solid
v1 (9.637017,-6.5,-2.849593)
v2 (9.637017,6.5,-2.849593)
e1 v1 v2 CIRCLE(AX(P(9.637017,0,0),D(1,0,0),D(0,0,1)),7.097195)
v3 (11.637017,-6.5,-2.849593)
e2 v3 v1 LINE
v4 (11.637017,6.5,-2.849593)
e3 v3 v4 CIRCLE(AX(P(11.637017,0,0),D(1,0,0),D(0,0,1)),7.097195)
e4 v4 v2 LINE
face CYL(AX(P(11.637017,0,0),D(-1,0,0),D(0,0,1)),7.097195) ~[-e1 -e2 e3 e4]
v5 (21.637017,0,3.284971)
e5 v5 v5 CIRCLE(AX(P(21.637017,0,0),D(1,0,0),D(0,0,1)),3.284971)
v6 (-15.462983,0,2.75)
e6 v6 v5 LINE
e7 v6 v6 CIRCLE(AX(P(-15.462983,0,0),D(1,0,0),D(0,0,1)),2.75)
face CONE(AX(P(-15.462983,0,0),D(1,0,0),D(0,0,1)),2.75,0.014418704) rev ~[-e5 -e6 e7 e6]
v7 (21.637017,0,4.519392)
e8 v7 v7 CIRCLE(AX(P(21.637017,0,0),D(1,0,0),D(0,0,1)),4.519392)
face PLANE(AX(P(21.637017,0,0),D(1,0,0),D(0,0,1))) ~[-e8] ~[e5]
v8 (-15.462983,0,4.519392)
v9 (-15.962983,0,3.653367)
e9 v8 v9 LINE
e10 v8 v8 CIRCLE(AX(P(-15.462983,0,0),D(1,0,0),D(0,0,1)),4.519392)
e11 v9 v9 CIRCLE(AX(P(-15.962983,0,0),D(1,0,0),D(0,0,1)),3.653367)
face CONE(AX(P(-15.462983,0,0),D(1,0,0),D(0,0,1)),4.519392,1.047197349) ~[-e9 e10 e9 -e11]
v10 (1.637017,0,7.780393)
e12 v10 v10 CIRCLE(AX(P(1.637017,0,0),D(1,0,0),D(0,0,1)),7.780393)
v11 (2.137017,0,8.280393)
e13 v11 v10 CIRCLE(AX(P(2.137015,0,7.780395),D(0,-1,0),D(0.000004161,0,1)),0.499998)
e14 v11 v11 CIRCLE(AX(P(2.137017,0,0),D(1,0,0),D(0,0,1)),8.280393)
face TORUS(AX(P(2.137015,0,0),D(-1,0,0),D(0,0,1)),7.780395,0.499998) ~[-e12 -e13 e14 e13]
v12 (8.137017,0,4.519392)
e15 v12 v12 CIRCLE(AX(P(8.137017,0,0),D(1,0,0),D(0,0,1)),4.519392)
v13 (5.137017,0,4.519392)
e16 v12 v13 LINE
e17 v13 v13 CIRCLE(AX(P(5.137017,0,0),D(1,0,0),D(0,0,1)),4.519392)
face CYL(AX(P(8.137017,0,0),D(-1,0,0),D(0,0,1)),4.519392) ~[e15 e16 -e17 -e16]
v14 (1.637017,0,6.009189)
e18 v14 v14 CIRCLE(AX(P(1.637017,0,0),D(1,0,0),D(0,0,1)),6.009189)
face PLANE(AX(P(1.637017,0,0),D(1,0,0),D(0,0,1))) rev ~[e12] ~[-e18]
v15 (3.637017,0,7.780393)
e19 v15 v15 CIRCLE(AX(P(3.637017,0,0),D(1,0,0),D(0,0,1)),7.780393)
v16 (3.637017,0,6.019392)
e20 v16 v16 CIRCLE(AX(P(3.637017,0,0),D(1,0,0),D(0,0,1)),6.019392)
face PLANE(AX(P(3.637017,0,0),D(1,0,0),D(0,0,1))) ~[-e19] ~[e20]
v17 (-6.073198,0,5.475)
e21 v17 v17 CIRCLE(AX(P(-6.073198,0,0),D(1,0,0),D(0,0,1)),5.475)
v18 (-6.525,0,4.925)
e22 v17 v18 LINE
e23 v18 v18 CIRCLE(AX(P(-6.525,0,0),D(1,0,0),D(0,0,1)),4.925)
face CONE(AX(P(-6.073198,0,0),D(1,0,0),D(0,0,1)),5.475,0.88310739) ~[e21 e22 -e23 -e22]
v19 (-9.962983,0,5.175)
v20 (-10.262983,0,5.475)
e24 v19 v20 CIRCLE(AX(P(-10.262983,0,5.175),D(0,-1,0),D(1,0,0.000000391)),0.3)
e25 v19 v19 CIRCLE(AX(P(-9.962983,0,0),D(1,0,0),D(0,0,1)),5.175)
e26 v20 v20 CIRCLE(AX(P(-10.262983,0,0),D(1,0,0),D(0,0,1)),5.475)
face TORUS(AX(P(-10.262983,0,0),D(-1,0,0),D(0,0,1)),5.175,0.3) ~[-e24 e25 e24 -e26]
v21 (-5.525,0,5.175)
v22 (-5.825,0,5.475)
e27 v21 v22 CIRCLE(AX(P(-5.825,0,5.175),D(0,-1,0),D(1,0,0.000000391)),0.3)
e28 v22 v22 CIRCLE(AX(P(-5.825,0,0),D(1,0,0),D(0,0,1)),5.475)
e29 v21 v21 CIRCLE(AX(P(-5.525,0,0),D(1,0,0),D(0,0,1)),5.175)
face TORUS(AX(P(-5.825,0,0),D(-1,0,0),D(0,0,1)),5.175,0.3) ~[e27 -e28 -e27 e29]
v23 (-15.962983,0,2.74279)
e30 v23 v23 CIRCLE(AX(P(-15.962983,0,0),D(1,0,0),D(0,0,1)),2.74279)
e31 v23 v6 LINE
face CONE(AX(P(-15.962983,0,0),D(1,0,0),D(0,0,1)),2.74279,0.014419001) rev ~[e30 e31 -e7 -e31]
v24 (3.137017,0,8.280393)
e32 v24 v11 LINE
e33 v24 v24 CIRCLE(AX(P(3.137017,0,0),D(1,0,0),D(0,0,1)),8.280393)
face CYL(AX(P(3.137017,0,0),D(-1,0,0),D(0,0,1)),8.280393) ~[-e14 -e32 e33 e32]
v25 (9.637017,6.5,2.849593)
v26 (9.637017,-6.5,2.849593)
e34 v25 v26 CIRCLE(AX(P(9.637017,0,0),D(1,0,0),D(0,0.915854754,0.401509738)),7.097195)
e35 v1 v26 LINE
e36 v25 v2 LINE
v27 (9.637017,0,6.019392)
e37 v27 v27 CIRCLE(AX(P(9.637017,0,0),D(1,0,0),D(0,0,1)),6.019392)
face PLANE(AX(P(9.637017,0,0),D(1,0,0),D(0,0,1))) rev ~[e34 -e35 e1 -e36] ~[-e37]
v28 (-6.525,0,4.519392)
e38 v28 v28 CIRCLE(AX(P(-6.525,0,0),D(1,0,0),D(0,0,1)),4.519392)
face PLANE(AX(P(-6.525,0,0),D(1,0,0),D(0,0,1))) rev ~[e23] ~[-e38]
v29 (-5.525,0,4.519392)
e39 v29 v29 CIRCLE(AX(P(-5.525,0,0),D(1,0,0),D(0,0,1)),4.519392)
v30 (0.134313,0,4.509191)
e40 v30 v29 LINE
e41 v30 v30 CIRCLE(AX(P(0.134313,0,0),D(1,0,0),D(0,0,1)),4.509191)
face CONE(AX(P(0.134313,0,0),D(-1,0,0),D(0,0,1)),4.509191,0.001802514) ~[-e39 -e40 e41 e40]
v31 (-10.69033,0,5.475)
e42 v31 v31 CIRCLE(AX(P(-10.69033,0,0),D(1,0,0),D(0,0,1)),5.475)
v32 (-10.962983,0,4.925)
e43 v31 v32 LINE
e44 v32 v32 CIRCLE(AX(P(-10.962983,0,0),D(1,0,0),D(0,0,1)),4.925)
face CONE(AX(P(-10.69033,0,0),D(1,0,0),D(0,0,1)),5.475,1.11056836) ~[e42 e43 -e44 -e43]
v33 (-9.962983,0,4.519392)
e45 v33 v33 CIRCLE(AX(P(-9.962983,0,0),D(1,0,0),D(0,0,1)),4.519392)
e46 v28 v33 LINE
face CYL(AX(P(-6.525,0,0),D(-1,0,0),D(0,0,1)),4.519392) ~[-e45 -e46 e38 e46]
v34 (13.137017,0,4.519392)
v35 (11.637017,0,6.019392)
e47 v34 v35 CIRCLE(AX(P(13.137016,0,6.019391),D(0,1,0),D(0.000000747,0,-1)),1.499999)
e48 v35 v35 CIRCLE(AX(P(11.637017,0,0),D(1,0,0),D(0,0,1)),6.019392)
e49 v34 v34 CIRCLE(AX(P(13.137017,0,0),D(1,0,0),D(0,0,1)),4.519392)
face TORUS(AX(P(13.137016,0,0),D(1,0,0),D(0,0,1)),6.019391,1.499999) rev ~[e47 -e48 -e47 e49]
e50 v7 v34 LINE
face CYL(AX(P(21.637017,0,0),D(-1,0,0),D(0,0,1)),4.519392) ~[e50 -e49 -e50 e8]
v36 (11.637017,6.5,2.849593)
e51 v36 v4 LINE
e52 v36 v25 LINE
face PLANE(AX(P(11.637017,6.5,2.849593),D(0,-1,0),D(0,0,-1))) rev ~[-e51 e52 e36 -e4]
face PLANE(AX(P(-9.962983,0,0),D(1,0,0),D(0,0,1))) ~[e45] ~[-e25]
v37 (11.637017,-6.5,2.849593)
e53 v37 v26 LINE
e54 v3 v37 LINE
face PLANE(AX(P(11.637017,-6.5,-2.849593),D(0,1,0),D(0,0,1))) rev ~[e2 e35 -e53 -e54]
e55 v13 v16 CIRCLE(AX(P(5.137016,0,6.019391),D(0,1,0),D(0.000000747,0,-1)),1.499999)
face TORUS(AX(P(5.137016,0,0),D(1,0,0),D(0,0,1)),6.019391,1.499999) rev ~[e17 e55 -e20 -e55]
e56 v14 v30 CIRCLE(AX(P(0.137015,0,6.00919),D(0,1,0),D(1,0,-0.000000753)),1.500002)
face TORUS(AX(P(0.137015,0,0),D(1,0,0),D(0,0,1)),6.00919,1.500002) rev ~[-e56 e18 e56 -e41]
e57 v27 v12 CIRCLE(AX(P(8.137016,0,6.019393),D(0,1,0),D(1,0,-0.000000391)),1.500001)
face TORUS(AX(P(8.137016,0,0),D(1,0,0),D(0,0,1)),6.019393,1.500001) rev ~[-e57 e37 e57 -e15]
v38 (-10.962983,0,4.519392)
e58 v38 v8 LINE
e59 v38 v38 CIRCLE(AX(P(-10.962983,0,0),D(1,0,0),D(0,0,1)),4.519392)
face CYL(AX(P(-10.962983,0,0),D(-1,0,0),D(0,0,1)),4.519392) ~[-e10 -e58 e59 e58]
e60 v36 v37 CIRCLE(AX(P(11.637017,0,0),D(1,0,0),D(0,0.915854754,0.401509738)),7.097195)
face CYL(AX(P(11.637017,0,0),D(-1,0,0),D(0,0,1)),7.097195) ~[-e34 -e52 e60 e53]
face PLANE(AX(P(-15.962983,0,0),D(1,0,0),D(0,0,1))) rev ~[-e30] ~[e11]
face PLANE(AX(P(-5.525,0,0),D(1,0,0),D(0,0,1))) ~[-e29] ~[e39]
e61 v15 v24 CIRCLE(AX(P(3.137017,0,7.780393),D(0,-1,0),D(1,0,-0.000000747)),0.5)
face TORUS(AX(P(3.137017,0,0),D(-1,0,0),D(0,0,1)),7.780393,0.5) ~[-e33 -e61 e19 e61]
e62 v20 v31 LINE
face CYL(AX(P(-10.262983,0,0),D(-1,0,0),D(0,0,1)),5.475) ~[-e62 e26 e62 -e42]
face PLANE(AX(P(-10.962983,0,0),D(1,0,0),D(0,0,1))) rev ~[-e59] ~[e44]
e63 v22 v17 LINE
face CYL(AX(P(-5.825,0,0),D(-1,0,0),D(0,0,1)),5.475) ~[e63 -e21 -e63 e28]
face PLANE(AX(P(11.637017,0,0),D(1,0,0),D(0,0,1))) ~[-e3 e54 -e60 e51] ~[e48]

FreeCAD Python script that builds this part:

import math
import FreeCAD as App
import Part
import Sketcher

V = App.Vector
Q = App.Units.Quantity

doc = App.newDocument("Part")
body = doc.addObject("PartDesign::Body", "Body")

# Sketch on XZ plane
sketch1 = body.newObject("Sketcher::SketchObject", "Sketch")
sketch1.AttachmentSupport = (doc.getObject("XZ_Plane"), [""])
sketch1.MapMode = "FlatFace"
sketch1.addGeometry([
    Part.LineSegment(V(-15.46, 4.52, 0), V(-15.96, 3.65, 0)),  # 0
    Part.LineSegment(V(-15.96, 3.65, 0), V(-15.96, 2.74, 0)),  # 1
    Part.LineSegment(V(-15.96, 2.74, 0), V(-15.46, 2.75, 0)),  # 2
    Part.LineSegment(V(-15.46, 2.75, 0), V(21.64, 3.28, 0)),  # 3
    Part.LineSegment(V(21.64, 3.28, 0), V(21.64, 4.52, 0)),  # 4
    Part.LineSegment(V(21.64, 4.52, 0), V(13.14, 4.52, 0)),  # 5
    Part.ArcOfCircle(Part.Circle(V(13.14, 6.02, 0), V(0, 0, 1), 1.5), math.radians(180), math.radians(270)),  # 6
    Part.LineSegment(V(11.64, 6.02, 0), V(11.64, 7.1, 0)),  # 7
    Part.LineSegment(V(11.64, 7.1, 0), V(9.64, 7.1, 0)),  # 8
    Part.LineSegment(V(9.64, 7.1, 0), V(9.64, 6.02, 0)),  # 9
    Part.ArcOfCircle(Part.Circle(V(8.14, 6.02, 0), V(0, 0, 1), 1.5), math.radians(-90), math.radians(0)),  # 10
    Part.LineSegment(V(8.14, 4.52, 0), V(5.14, 4.52, 0)),  # 11
    Part.ArcOfCircle(Part.Circle(V(5.14, 6.02, 0), V(0, 0, 1), 1.5), math.radians(180), math.radians(270)),  # 12
    Part.LineSegment(V(3.64, 6.02, 0), V(3.64, 7.78, 0)),  # 13
    Part.ArcOfCircle(Part.Circle(V(3.14, 7.78, 0), V(0, 0, 1), 0.5), math.radians(0), math.radians(90)),  # 14
    Part.LineSegment(V(3.14, 8.28, 0), V(2.14, 8.28, 0)),  # 15
    Part.ArcOfCircle(Part.Circle(V(2.14, 7.78, 0), V(0, 0, 1), 0.5), math.radians(90), math.radians(180)),  # 16
    Part.LineSegment(V(1.64, 7.78, 0), V(1.64, 6.01, 0)),  # 17
    Part.ArcOfCircle(Part.Circle(V(0.14, 6.01, 0), V(0, 0, 1), 1.5), math.radians(-90), math.radians(0)),  # 18
    Part.LineSegment(V(0.13, 4.51, 0), V(-5.53, 4.52, 0)),  # 19
    Part.LineSegment(V(-5.53, 4.52, 0), V(-5.53, 5.17, 0)),  # 20
    Part.ArcOfCircle(Part.Circle(V(-5.83, 5.17, 0), V(0, 0, 1), 0.3), math.radians(0), math.radians(90)),  # 21
    Part.LineSegment(V(-5.83, 5.47, 0), V(-6.07, 5.47, 0)),  # 22
    Part.LineSegment(V(-6.07, 5.47, 0), V(-6.53, 4.92, 0)),  # 23
    Part.LineSegment(V(-6.53, 4.92, 0), V(-6.53, 4.52, 0)),  # 24
    Part.LineSegment(V(-6.53, 4.52, 0), V(-9.96, 4.52, 0)),  # 25
    Part.LineSegment(V(-9.96, 4.52, 0), V(-9.96, 5.17, 0)),  # 26
    Part.ArcOfCircle(Part.Circle(V(-10.26, 5.17, 0), V(0, 0, 1), 0.3), math.radians(0), math.radians(90)),  # 27
    Part.LineSegment(V(-10.26, 5.47, 0), V(-10.69, 5.47, 0)),  # 28
    Part.LineSegment(V(-10.69, 5.47, 0), V(-10.96, 4.92, 0)),  # 29
    Part.LineSegment(V(-10.96, 4.92, 0), V(-10.96, 4.52, 0)),  # 30
    Part.LineSegment(V(-10.96, 4.52, 0), V(-15.46, 4.52, 0)),  # 31
], False)
sketch1.addConstraint([
    Sketcher.Constraint("Coincident", 0, 2, 1, 1),
    Sketcher.Constraint("Coincident", 1, 2, 2, 1),
    Sketcher.Constraint("Coincident", 2, 2, 3, 1),
    Sketcher.Constraint("Coincident", 3, 2, 4, 1),
    Sketcher.Constraint("Coincident", 4, 2, 5, 1),
    Sketcher.Constraint("Tangent", 5, 2, 6, 2),
    Sketcher.Constraint("Tangent", 6, 1, 7, 1),
    Sketcher.Constraint("Coincident", 7, 2, 8, 1),
    Sketcher.Constraint("Coincident", 8, 2, 9, 1),
    Sketcher.Constraint("Tangent", 9, 2, 10, 2),
    Sketcher.Constraint("Tangent", 10, 1, 11, 1),
    Sketcher.Constraint("Tangent", 11, 2, 12, 2),
    Sketcher.Constraint("Tangent", 12, 1, 13, 1),
    Sketcher.Constraint("Tangent", 13, 2, 14, 1),
    Sketcher.Constraint("Tangent", 14, 2, 15, 1),
    Sketcher.Constraint("Coincident", 15, 2, 16, 1),
    Sketcher.Constraint("Coincident", 16, 2, 17, 1),
    Sketcher.Constraint("Tangent", 17, 2, 18, 2),
    Sketcher.Constraint("Tangent", 18, 1, 19, 1),
    Sketcher.Constraint("Coincident", 19, 2, 20, 1),
    Sketcher.Constraint("Tangent", 20, 2, 21, 1),
    Sketcher.Constraint("Tangent", 21, 2, 22, 1),
    Sketcher.Constraint("Coincident", 22, 2, 23, 1),
    Sketcher.Constraint("Coincident", 23, 2, 24, 1),
    Sketcher.Constraint("Coincident", 24, 2, 25, 1),
    Sketcher.Constraint("Coincident", 25, 2, 26, 1),
    Sketcher.Constraint("Tangent", 26, 2, 27, 1),
    Sketcher.Constraint("Tangent", 27, 2, 28, 1),
    Sketcher.Constraint("Coincident", 28, 2, 29, 1),
    Sketcher.Constraint("Coincident", 29, 2, 30, 1),
    Sketcher.Constraint("Coincident", 30, 2, 31, 1),
    Sketcher.Constraint("Coincident", 31, 2, 0, 1),
    Sketcher.Constraint("Vertical", 1),
    Sketcher.Constraint("Vertical", 4),
    Sketcher.Constraint("Horizontal", 5),
    Sketcher.Constraint("Vertical", 7),
    Sketcher.Constraint("Horizontal", 8),
    Sketcher.Constraint("Vertical", 9),
    Sketcher.Constraint("Horizontal", 11),
    Sketcher.Constraint("Vertical", 13),
    Sketcher.Constraint("Horizontal", 15),
    Sketcher.Constraint("Vertical", 17),
    Sketcher.Constraint("Vertical", 20),
    Sketcher.Constraint("Horizontal", 22),
    Sketcher.Constraint("Vertical", 24),
    Sketcher.Constraint("Horizontal", 25),
    Sketcher.Constraint("Vertical", 26),
    Sketcher.Constraint("Horizontal", 28),
    Sketcher.Constraint("Vertical", 30),
    Sketcher.Constraint("Horizontal", 31),
    Sketcher.Constraint("Equal", 6, 10),
    Sketcher.Constraint("Equal", 10, 12),
    Sketcher.Constraint("Equal", 14, 16),
    Sketcher.Constraint("Equal", 10, 18),
    Sketcher.Constraint("Equal", 21, 27),
    Sketcher.Constraint("Parallel", 2, 3),
    Sketcher.Constraint("Horizontal", 6, 3, 10, 3),
    Sketcher.Constraint("Horizontal", 21, 3, 27, 3),
    Sketcher.Constraint("Horizontal", 13, 2, 16, 2),
    Sketcher.Constraint("Horizontal", 11, 2, 19, 2),
    Sketcher.Constraint("Horizontal", 19, 2, 24, 2),
    Sketcher.Constraint("Horizontal", 23, 2, 29, 2),
    Sketcher.Constraint("Horizontal", 25, 2, 30, 2),
    Sketcher.Constraint("Vertical", 2, 2, 31, 2),
    Sketcher.Constraint("Radius", 6, 1.499999),
    Sketcher.Constraint("Radius", 14, 0.5),
    Sketcher.Constraint("Radius", 21, 0.3),
    Sketcher.Constraint("DistanceX", 8, 2, 8, 1, 2.0),
    Sketcher.Constraint("DistanceX", 11, 2, 11, 1, 3.0),
    Sketcher.Constraint("DistanceX", 15, 2, 15, 1, 1.0),
    Sketcher.Constraint("Angle", 0, Q("-120.000012 deg")),
    Sketcher.Constraint("Distance", 0, 1.0),
    Sketcher.Constraint("DistanceX", 5, 2, 5, 1, 8.5),
    Sketcher.Constraint("DistanceX", 31, 2, 31, 1, 4.5),
    Sketcher.Constraint("DistanceX", 16, 3, 12, 3, 3.000001),
    Sketcher.Constraint("DistanceX", 23, 2, 20, 2, 1.0),
    Sketcher.Constraint("DistanceX", 29, 2, 26, 2, 1.0),
    Sketcher.Constraint("DistanceX", 27, 3, 18, 3, 10.399999),
    Sketcher.Constraint("DistanceY", 13, 1, 13, 2, 1.761001),
    Sketcher.Constraint("DistanceY", -1, 1, 2, 2, 2.75),
    Sketcher.Constraint("DistanceY", 23, 2, 22, 2, 0.55),
    Sketcher.Constraint("DistanceX", 21, 3, -1, 1, 5.825),
    Sketcher.Constraint("DistanceY", -1, 1, 21, 3, 5.175),
    Sketcher.Constraint("DistanceY", 4, 1, 4, 2, 1.234421),
    Sketcher.Constraint("DistanceY", 18, 3, 12, 3, 0.010201),
    Sketcher.Constraint("DistanceY", 1, 2, 18, 3, 3.2664),
    Sketcher.Constraint("DistanceX", 22, 2, 22, 1, 0.248198),
    Sketcher.Constraint("DistanceX", 25, 2, 25, 1, 3.437983),
    Sketcher.Constraint("DistanceX", 28, 2, 28, 1, 0.427347),
    Sketcher.Constraint("DistanceY", 7, 1, 7, 2, 1.077803),
])
revolution = body.newObject("PartDesign::Revolution", "Revolution")
revolution.Profile = sketch1
revolution.ReferenceAxis = (sketch1, ["H_Axis"])
revolution.Angle = 360

# Sketch on YZ plane
sketch2 = body.newObject("Sketcher::SketchObject", "Sketch001")
sketch2.AttachmentSupport = (doc.getObject("YZ_Plane"), [""])
sketch2.MapMode = "FlatFace"
sketch2.AttachmentOffset = App.Placement(V(0, 0, 11.637017), App.Rotation())
sketch2.addGeometry([
    Part.LineSegment(V(-6.5, -2.8, 0), V(-6.5, 2.8, 0)),  # 0
    Part.ArcOfCircle(Part.Circle(V(0, 0, 0), V(0, 0, 1), 7.1), math.radians(156), math.radians(204)),  # 1
    Part.ArcOfCircle(Part.Circle(V(0, 0, 0), V(0, 0, 1), 7.1), math.radians(0), math.radians(24)),  # 2
    Part.LineSegment(V(6.5, 2.8, 0), V(6.5, -2.8, 0)),  # 3
    Part.ArcOfCircle(Part.Circle(V(0, 0, 0), V(0, 0, 1), 7.1), math.radians(-24), math.radians(0)),  # 4
], False)
sketch2.addConstraint([
    Sketcher.Constraint("Coincident", 0, 1, 1, 2),
    Sketcher.Constraint("Coincident", 1, 1, 0, 2),
    Sketcher.Constraint("Coincident", 2, 2, 3, 1),
    Sketcher.Constraint("Coincident", 3, 2, 4, 1),
    Sketcher.Constraint("Tangent", 4, 2, 2, 1),
    Sketcher.Constraint("Vertical", 0),
    Sketcher.Constraint("Vertical", 3),
    Sketcher.Constraint("Coincident", 1, 3, -1, 1),
    Sketcher.Constraint("Coincident", 2, 3, -1, 1),
    Sketcher.Constraint("Equal", 1, 2),
    Sketcher.Constraint("Equal", 2, 4),
    Sketcher.Constraint("PointOnObject", 4, 2, -1),
    Sketcher.Constraint("Horizontal", 1, 1, 2, 2),
    Sketcher.Constraint("DistanceX", 1, 1, 2, 2, 13.0),
    Sketcher.Constraint("Radius", 1, 7.097198),
])
pocket1 = body.newObject("PartDesign::Pocket", "Pocket")
pocket1.Profile = sketch2
pocket1.Length = 4

doc.recompute()
